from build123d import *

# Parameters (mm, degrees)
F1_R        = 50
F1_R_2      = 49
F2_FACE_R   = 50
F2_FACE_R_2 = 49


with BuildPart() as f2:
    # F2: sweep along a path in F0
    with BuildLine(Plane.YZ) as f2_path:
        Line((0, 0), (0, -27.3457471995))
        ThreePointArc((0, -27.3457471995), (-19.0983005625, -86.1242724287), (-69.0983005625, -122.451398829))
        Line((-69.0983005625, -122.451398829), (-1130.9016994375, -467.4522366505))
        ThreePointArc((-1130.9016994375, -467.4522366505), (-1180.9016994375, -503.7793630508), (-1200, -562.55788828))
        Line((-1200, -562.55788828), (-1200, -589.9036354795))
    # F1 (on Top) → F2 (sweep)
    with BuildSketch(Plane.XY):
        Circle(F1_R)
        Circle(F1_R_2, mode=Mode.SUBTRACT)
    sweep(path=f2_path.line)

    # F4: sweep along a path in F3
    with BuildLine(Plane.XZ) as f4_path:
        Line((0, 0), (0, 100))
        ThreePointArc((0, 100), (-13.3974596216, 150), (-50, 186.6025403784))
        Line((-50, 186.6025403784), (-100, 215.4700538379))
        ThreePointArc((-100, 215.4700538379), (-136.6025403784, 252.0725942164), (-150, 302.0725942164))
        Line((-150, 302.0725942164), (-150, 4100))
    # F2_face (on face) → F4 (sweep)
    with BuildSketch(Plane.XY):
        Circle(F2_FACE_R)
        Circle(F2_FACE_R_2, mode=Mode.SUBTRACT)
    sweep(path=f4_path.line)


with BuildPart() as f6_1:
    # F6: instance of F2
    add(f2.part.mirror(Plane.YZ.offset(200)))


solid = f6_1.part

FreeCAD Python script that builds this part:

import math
import FreeCAD as App
import Part
import Sketcher
Q = App.Units.Quantity

doc = App.newDocument("Part")
body = doc.addObject("PartDesign::Body", "Body")

# Sketch on XY plane
sketch1 = body.newObject("Sketcher::SketchObject", "Sketch")
sketch1.AttachmentSupport = (doc.getObject("XY_Plane"), [""])
sketch1.MapMode = "FlatFace"
sketch1.addGeometry([
    Part.Circle(App.Vector(0, 0, 0), App.Vector(0, 0, 1), 50),
    Part.Circle(App.Vector(0, 0, 0), App.Vector(0, 0, 1), 49),
], False)
sketch1.addConstraint([
    Sketcher.Constraint("Coincident", 0, 3, -1, 1),
    Sketcher.Constraint("Coincident", 1, 3, -1, 1),
    Sketcher.Constraint("Diameter", 0, Q("100 mm")),
    Sketcher.Constraint("Diameter", 1, Q("98 mm")),
])

# Sketch on YZ plane
sketch2 = body.newObject("Sketcher::SketchObject", "Sketch001")
sketch2.AttachmentSupport = (doc.getObject("YZ_Plane"), [""])
sketch2.MapMode = "FlatFace"
sketch2.addGeometry([
    Part.LineSegment(App.Vector(0, 0, 0), App.Vector(0, -27.345747, 0)),  # 0
    Part.ArcOfCircle(Part.Circle(App.Vector(-100, -27.345747, 0), App.Vector(0, 0, 1), 100), math.radians(-72), math.radians(0)),  # 1
    Part.LineSegment(App.Vector(-69.098301, -122.451399, 0), App.Vector(-1130.901699, -467.452237, 0)),  # 2
    Part.ArcOfCircle(Part.Circle(App.Vector(-1100, -562.557888, 0), App.Vector(0, 0, 1), 100), math.radians(108), math.radians(180)),  # 3
    Part.LineSegment(App.Vector(-1200, -562.557888, 0), App.Vector(-1200, -589.903635, 0)),  # 4
], False)
sketch2.addConstraint([
    Sketcher.Constraint("Tangent", 0, 2, 1, 2),
    Sketcher.Constraint("Tangent", 1, 1, 2, 1),
    Sketcher.Constraint("Tangent", 2, 2, 3, 1),
    Sketcher.Constraint("Tangent", 3, 2, 4, 1),
    Sketcher.Constraint("Vertical", 0),
    Sketcher.Constraint("Vertical", 4),
    Sketcher.Constraint("Coincident", 0, 1, -1, 1),
    Sketcher.Constraint("Equal", 1, 3),
    Sketcher.Constraint("Equal", 0, 4),
    Sketcher.Constraint("Radius", 1, Q("100 mm")),
    Sketcher.Constraint("Angle", 2, Q("-162 deg")),
    Sketcher.Constraint("DistanceX", 3, 3, -1, 1, Q("1100 mm")),
    Sketcher.Constraint("DistanceY", 1, 1, -1, 1, Q("122.451399 mm")),
])
doc.recompute()

additivepipe = body.newObject("PartDesign::AdditivePipe", "AdditivePipe")
additivepipe.Profile = sketch1
additivepipe.Spine = (sketch2, ["Edge1", "Edge2", "Edge3", "Edge4", "Edge5"])

# Sketch on XY plane
sketch3 = body.newObject("Sketcher::SketchObject", "Sketch002")
sketch3.AttachmentSupport = (doc.getObject("XY_Plane"), [""])
sketch3.MapMode = "FlatFace"
sketch3.addGeometry([
    Part.Circle(App.Vector(0, 0, 0), App.Vector(0, 0, 1), 50),
    Part.Circle(App.Vector(0, 0, 0), App.Vector(0, 0, 1), 49),
], False)
sketch3.addConstraint([
    Sketcher.Constraint("Coincident", 0, 3, -1, 1),
    Sketcher.Constraint("Coincident", 1, 3, -1, 1),
    Sketcher.Constraint("Diameter", 0, Q("100 mm")),
    Sketcher.Constraint("Diameter", 1, Q("98 mm")),
])

# Sketch on XZ plane
sketch4 = body.newObject("Sketcher::SketchObject", "Sketch003")
sketch4.AttachmentSupport = (doc.getObject("XZ_Plane"), [""])
sketch4.MapMode = "FlatFace"
sketch4.addGeometry([
    Part.LineSegment(App.Vector(0, 0, 0), App.Vector(0, 100, 0)),  # 0
    Part.ArcOfCircle(Part.Circle(App.Vector(-100, 100, 0), App.Vector(0, 0, 1), 100), math.radians(0), math.radians(60)),  # 1
    Part.LineSegment(App.Vector(-50, 186.60254, 0), App.Vector(-100, 215.470054, 0)),  # 2
    Part.ArcOfCircle(Part.Circle(App.Vector(-50, 302.072594, 0), App.Vector(0, 0, 1), 100), math.radians(-180), math.radians(-120)),  # 3
    Part.LineSegment(App.Vector(-150, 302.072594, 0), App.Vector(-150, 4100, 0)),  # 4
], False)
sketch4.addConstraint([
    Sketcher.Constraint("Tangent", 0, 2, 1, 1),
    Sketcher.Constraint("Tangent", 1, 2, 2, 1),
    Sketcher.Constraint("Tangent", 2, 2, 3, 2),
    Sketcher.Constraint("Tangent", 3, 1, 4, 1),
    Sketcher.Constraint("Vertical", 0),
    Sketcher.Constraint("Vertical", 4),
    Sketcher.Constraint("Coincident", 0, 1, -1, 1),
    Sketcher.Constraint("Equal", 1, 3),
    Sketcher.Constraint("Vertical", 3, 3, 1, 2),
    Sketcher.Constraint("Radius", 1, Q("100 mm")),
    Sketcher.Constraint("DistanceY", 0, 1, 0, 2, Q("100 mm")),
    Sketcher.Constraint("Angle", 2, Q("150 deg")),
    Sketcher.Constraint("DistanceY", -1, 1, 4, 2, Q("4100 mm")),
])
doc.recompute()

additivepipe2 = body.newObject("PartDesign::AdditivePipe", "AdditivePipe001")
additivepipe2.Profile = sketch3
additivepipe2.Spine = (sketch4, ["Edge1", "Edge2", "Edge3", "Edge4", "Edge5"])
body2 = doc.addObject("PartDesign::Body", "Body001")
doc.recompute()

mirroring = doc.addObject("Part::Mirroring", "Mirroring")
mirroring.Source = body
mirroring.Base = App.Vector(200, 0, 0)
mirroring.Normal = App.Vector(1, 0, 0)
body2.BaseFeature = mirroring
doc.recompute()
body.Visibility = False
mirroring.Visibility = False

doc.recompute()
